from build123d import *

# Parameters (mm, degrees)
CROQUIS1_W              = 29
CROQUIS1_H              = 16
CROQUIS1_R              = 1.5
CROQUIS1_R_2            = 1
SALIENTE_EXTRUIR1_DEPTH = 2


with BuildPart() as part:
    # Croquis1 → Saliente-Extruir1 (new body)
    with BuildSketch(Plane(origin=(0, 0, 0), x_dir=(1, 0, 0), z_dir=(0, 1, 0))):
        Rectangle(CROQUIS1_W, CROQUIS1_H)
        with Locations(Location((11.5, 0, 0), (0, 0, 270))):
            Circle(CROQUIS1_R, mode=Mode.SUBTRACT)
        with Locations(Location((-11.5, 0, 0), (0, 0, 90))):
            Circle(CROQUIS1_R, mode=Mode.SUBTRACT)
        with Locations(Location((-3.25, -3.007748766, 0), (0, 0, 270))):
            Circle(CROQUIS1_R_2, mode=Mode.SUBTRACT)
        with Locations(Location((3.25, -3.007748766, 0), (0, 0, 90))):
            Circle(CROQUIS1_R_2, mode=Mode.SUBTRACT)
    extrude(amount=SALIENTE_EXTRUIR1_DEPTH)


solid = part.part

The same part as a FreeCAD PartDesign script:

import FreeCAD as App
import Part
import Sketcher
from FreeCAD import Vector


def add_polygon(sketch, points):
    """Adds a closed chain of lines whose ends are joined by coincident constraints."""
    first, n = sketch.GeometryCount, len(points)
    for a, b in zip(points, points[1:] + points[:1]):
        sketch.addGeometry(Part.LineSegment(App.Vector(*a, 0), App.Vector(*b, 0)), False)
    for i in range(n):
        sketch.addConstraint(Sketcher.Constraint("Coincident", first + i, 2, first + (i + 1) % n, 1))

doc = App.newDocument("Part")
params = doc.addObject("Spreadsheet::Sheet", "Params")
for row, (alias, value) in enumerate([
    ("sketch1_diameter", "2 mm"),
    ("sketch1_diameter2", "3 mm"),
    ("sketch1_width", "29 mm"),
    ("sketch1_height", "16 mm"),
    ("pad1_length", "2 mm"),
], start=1):
    params.set(f"A{row}", alias)
    params.set(f"B{row}", "=" + value)
    params.setAlias(f"B{row}", alias)

body = doc.addObject("PartDesign::Body", "Body")

sketch1 = body.newObject("Sketcher::SketchObject", "Sketch")
sketch1.AttachmentSupport = (doc.getObject("XZ_Plane"), [""])
sketch1.MapMode = "FlatFace"
add_polygon(sketch1, [(-14.5, -8), (-14.5, 8), (14.5, 8), (14.5, -8)])
sketch1.addGeometry(Part.Circle(Vector(-3.2, 3, 0), Vector(0, 0, 1), 1), False)
sketch1.addGeometry(Part.Circle(Vector(3.2, 3, 0), Vector(0, 0, 1), 1), False)
sketch1.addGeometry(Part.Circle(Vector(-11.5, 0, 0), Vector(0, 0, 1), 1.5), False)
sketch1.addGeometry(Part.Circle(Vector(11.5, 0, 0), Vector(0, 0, 1), 1.5), False)
sketch1.addConstraint(Sketcher.Constraint("Vertical", 0))
sketch1.addConstraint(Sketcher.Constraint("Horizontal", 1))
sketch1.addConstraint(Sketcher.Constraint("Vertical", 2))
sketch1.addConstraint(Sketcher.Constraint("Horizontal", 3))
sketch1.addConstraint(Sketcher.Constraint("Equal", 4, 5))
sketch1.addConstraint(Sketcher.Constraint("Equal", 6, 7))
sketch1.addConstraint(Sketcher.Constraint("Symmetric", 6, 3, 7, 3, -1, 1))
sketch1.addConstraint(Sketcher.Constraint("Symmetric", 0, 2, 2, 2, -1, 1))
sketch1.addConstraint(Sketcher.Constraint("Symmetric", 4, 3, 5, 3, -2))
sketch1.addConstraint(Sketcher.Constraint("PointOnObject", 6, 3, -1))
sketch1.addConstraint(Sketcher.Constraint("Diameter", 4, 2.0))
sketch1.addConstraint(Sketcher.Constraint("Diameter", 6, 3.0))
sketch1.addConstraint(Sketcher.Constraint("DistanceX", 1, 1, 1, 2, 29.0))
sketch1.addConstraint(Sketcher.Constraint("DistanceY", 0, 1, 0, 2, 16.0))
sketch1.addConstraint(Sketcher.Constraint("DistanceX", 6, 3, 7, 3, 23.0))
sketch1.addConstraint(Sketcher.Constraint("DistanceX", 4, 3, 5, 3, 6.5))
sketch1.addConstraint(Sketcher.Constraint("DistanceY", -1, 1, 4, 3, 3.007749))
sketch1.setExpression("Constraints[14]", "Params.sketch1_diameter")
sketch1.setExpression("Constraints[15]", "Params.sketch1_diameter2")
sketch1.setExpression("Constraints[16]", "Params.sketch1_width")
sketch1.setExpression("Constraints[17]", "Params.sketch1_height")
pad1 = body.newObject("PartDesign::Pad", "Pad")
pad1.Profile = sketch1
pad1.setExpression("Length", "Params.pad1_length")
pad1.Reversed = True

doc.recompute()
